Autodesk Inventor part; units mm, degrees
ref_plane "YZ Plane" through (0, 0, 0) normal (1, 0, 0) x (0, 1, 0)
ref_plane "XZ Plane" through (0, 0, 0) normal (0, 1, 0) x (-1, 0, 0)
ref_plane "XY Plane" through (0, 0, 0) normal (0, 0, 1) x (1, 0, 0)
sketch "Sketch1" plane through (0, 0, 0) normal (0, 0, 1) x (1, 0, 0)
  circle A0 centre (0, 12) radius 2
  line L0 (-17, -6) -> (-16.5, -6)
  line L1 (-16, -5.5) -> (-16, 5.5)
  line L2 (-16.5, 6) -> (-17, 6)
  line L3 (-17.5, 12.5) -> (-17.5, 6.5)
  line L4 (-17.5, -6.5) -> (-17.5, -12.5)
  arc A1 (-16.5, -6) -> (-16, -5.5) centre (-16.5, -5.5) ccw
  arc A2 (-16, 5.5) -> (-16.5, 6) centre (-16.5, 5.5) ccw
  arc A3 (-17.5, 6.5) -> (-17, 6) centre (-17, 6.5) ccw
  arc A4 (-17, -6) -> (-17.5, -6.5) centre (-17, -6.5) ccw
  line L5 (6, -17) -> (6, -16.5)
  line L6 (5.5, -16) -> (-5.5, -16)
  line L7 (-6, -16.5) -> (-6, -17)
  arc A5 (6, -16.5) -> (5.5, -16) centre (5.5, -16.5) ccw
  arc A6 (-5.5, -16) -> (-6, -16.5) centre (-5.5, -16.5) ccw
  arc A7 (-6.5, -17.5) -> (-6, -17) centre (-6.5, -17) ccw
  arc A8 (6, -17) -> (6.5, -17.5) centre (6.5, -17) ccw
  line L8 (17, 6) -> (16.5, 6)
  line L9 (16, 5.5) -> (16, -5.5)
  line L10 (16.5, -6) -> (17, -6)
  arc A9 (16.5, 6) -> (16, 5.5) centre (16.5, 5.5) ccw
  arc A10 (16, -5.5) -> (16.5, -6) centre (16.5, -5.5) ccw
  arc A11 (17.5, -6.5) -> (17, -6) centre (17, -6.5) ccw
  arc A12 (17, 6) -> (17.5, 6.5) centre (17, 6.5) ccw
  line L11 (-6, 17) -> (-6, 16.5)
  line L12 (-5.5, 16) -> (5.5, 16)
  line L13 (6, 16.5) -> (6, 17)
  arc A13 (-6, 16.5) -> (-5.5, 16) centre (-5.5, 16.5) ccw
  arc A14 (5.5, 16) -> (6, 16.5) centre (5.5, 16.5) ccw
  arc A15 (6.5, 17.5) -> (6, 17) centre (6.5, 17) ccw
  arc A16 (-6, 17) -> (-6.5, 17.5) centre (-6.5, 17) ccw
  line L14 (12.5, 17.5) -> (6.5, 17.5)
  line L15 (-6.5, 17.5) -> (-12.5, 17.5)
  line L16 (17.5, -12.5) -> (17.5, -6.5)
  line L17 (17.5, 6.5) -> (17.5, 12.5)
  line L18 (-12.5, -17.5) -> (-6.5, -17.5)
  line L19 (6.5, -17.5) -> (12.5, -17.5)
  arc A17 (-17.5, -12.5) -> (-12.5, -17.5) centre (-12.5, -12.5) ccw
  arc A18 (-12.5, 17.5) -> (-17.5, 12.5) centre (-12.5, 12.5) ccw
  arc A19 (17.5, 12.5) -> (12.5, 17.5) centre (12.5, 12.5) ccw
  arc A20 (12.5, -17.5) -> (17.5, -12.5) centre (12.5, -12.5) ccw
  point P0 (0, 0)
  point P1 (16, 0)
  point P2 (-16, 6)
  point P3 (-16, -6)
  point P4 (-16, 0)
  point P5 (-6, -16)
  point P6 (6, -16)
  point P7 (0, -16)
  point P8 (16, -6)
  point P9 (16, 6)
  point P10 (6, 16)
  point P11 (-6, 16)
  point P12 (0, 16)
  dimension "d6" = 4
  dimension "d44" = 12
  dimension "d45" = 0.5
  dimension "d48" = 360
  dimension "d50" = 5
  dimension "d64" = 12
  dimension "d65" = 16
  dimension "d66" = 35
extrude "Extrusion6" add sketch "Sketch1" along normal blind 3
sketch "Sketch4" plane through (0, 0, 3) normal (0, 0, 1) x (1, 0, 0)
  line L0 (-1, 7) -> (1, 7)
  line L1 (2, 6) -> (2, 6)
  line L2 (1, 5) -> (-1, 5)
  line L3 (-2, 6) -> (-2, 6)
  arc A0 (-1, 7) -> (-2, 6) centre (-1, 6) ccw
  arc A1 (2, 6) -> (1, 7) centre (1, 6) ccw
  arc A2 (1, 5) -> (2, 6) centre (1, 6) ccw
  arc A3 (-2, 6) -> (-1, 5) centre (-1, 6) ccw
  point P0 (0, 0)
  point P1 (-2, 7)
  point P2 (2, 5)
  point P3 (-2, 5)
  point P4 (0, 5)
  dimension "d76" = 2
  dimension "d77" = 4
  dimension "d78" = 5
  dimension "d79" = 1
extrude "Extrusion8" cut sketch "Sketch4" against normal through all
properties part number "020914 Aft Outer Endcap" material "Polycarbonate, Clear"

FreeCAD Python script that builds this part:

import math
import FreeCAD as App
import Part
import Sketcher

V = App.Vector

doc = App.newDocument("Part")
body = doc.addObject("PartDesign::Body", "Body")

sketch1 = body.newObject("Sketcher::SketchObject", "Sketch")
sketch1.AttachmentSupport = (doc.getObject("XY_Plane"), [""])
sketch1.MapMode = "FlatFace"
sketch1.addGeometry(Part.LineSegment(V(-16.5, -6, 0), V(-17, -6, 0)), False)
sketch1.addGeometry(Part.ArcOfCircle(Part.Circle(V(-17, -6.5, 0), V(0, 0, 1), 0.5), math.radians(90), math.radians(180)), False)
sketch1.addGeometry(Part.LineSegment(V(-17.5, -6.5, 0), V(-17.5, -12.5, 0)), False)
sketch1.addGeometry(Part.ArcOfCircle(Part.Circle(V(-12.5, -12.5, 0), V(0, 0, 1), 5), math.radians(180), math.radians(270)), False)
sketch1.addGeometry(Part.LineSegment(V(-12.5, -17.5, 0), V(-6.5, -17.5, 0)), False)
sketch1.addGeometry(Part.ArcOfCircle(Part.Circle(V(-6.5, -17, 0), V(0, 0, 1), 0.5), math.radians(-90), math.radians(0)), False)
sketch1.addGeometry(Part.LineSegment(V(-6, -17, 0), V(-6, -16.5, 0)), False)
sketch1.addGeometry(Part.ArcOfCircle(Part.Circle(V(-5.5, -16.5, 0), V(0, 0, 1), 0.5), math.radians(90), math.radians(180)), False)
sketch1.addGeometry(Part.LineSegment(V(-5.5, -16, 0), V(5.5, -16, 0)), False)
sketch1.addGeometry(Part.ArcOfCircle(Part.Circle(V(5.5, -16.5, 0), V(0, 0, 1), 0.5), math.radians(0), math.radians(90)), False)
sketch1.addGeometry(Part.LineSegment(V(6, -16.5, 0), V(6, -17, 0)), False)
sketch1.addGeometry(Part.ArcOfCircle(Part.Circle(V(6.5, -17, 0), V(0, 0, 1), 0.5), math.radians(180), math.radians(270)), False)
sketch1.addGeometry(Part.LineSegment(V(6.5, -17.5, 0), V(12.5, -17.5, 0)), False)
sketch1.addGeometry(Part.ArcOfCircle(Part.Circle(V(12.5, -12.5, 0), V(0, 0, 1), 5), math.radians(-90), math.radians(0)), False)
sketch1.addGeometry(Part.LineSegment(V(17.5, -12.5, 0), V(17.5, -6.5, 0)), False)
sketch1.addGeometry(Part.ArcOfCircle(Part.Circle(V(17, -6.5, 0), V(0, 0, 1), 0.5), math.radians(0), math.radians(90)), False)
sketch1.addGeometry(Part.LineSegment(V(17, -6, 0), V(16.5, -6, 0)), False)
sketch1.addGeometry(Part.ArcOfCircle(Part.Circle(V(16.5, -5.5, 0), V(0, 0, 1), 0.5), math.radians(180), math.radians(270)), False)
sketch1.addGeometry(Part.LineSegment(V(16, -5.5, 0), V(16, 5.5, 0)), False)
sketch1.addGeometry(Part.ArcOfCircle(Part.Circle(V(16.5, 5.5, 0), V(0, 0, 1), 0.5), math.radians(90), math.radians(180)), False)
sketch1.addGeometry(Part.LineSegment(V(16.5, 6, 0), V(17, 6, 0)), False)
sketch1.addGeometry(Part.ArcOfCircle(Part.Circle(V(17, 6.5, 0), V(0, 0, 1), 0.5), math.radians(-90), math.radians(0)), False)
sketch1.addGeometry(Part.LineSegment(V(17.5, 6.5, 0), V(17.5, 12.5, 0)), False)
sketch1.addGeometry(Part.ArcOfCircle(Part.Circle(V(12.5, 12.5, 0), V(0, 0, 1), 5), math.radians(0), math.radians(90)), False)
sketch1.addGeometry(Part.LineSegment(V(12.5, 17.5, 0), V(6.5, 17.5, 0)), False)
sketch1.addGeometry(Part.ArcOfCircle(Part.Circle(V(6.5, 17, 0), V(0, 0, 1), 0.5), math.radians(90), math.radians(180)), False)
sketch1.addGeometry(Part.LineSegment(V(6, 17, 0), V(6, 16.5, 0)), False)
sketch1.addGeometry(Part.ArcOfCircle(Part.Circle(V(5.5, 16.5, 0), V(0, 0, 1), 0.5), math.radians(-90), math.radians(0)), False)
sketch1.addGeometry(Part.LineSegment(V(5.5, 16, 0), V(-5.5, 16, 0)), False)
sketch1.addGeometry(Part.ArcOfCircle(Part.Circle(V(-5.5, 16.5, 0), V(0, 0, 1), 0.5), math.radians(180), math.radians(270)), False)
sketch1.addGeometry(Part.LineSegment(V(-6, 16.5, 0), V(-6, 17, 0)), False)
sketch1.addGeometry(Part.ArcOfCircle(Part.Circle(V(-6.5, 17, 0), V(0, 0, 1), 0.5), math.radians(0), math.radians(90)), False)
sketch1.addGeometry(Part.LineSegment(V(-6.5, 17.5, 0), V(-12.5, 17.5, 0)), False)
sketch1.addGeometry(Part.ArcOfCircle(Part.Circle(V(-12.5, 12.5, 0), V(0, 0, 1), 5), math.radians(90), math.radians(180)), False)
sketch1.addGeometry(Part.LineSegment(V(-17.5, 12.5, 0), V(-17.5, 6.5, 0)), False)
sketch1.addGeometry(Part.ArcOfCircle(Part.Circle(V(-17, 6.5, 0), V(0, 0, 1), 0.5), math.radians(180), math.radians(270)), False)
sketch1.addGeometry(Part.LineSegment(V(-17, 6, 0), V(-16.5, 6, 0)), False)
sketch1.addGeometry(Part.ArcOfCircle(Part.Circle(V(-16.5, 5.5, 0), V(0, 0, 1), 0.5), math.radians(0), math.radians(90)), False)
sketch1.addGeometry(Part.LineSegment(V(-16, 5.5, 0), V(-16, -5.5, 0)), False)
sketch1.addGeometry(Part.ArcOfCircle(Part.Circle(V(-16.5, -5.5, 0), V(0, 0, 1), 0.5), math.radians(-90), math.radians(0)), False)
sketch1.addGeometry(Part.Circle(V(0, 12, 0), V(0, 0, 1), 2), False)
sketch1.addConstraint(Sketcher.Constraint("Tangent", 0, 2, 1, 1))
sketch1.addConstraint(Sketcher.Constraint("Tangent", 1, 2, 2, 1))
sketch1.addConstraint(Sketcher.Constraint("Tangent", 2, 2, 3, 1))
sketch1.addConstraint(Sketcher.Constraint("Tangent", 3, 2, 4, 1))
sketch1.addConstraint(Sketcher.Constraint("Tangent", 4, 2, 5, 1))
sketch1.addConstraint(Sketcher.Constraint("Tangent", 5, 2, 6, 1))
sketch1.addConstraint(Sketcher.Constraint("Tangent", 6, 2, 7, 2))
sketch1.addConstraint(Sketcher.Constraint("Tangent", 7, 1, 8, 1))
sketch1.addConstraint(Sketcher.Constraint("Tangent", 8, 2, 9, 2))
sketch1.addConstraint(Sketcher.Constraint("Tangent", 9, 1, 10, 1))
sketch1.addConstraint(Sketcher.Constraint("Tangent", 10, 2, 11, 1))
sketch1.addConstraint(Sketcher.Constraint("Tangent", 11, 2, 12, 1))
sketch1.addConstraint(Sketcher.Constraint("Tangent", 12, 2, 13, 1))
sketch1.addConstraint(Sketcher.Constraint("Tangent", 13, 2, 14, 1))
sketch1.addConstraint(Sketcher.Constraint("Tangent", 14, 2, 15, 1))
sketch1.addConstraint(Sketcher.Constraint("Tangent", 15, 2, 16, 1))
sketch1.addConstraint(Sketcher.Constraint("Tangent", 16, 2, 17, 2))
sketch1.addConstraint(Sketcher.Constraint("Tangent", 17, 1, 18, 1))
sketch1.addConstraint(Sketcher.Constraint("Tangent", 18, 2, 19, 2))
sketch1.addConstraint(Sketcher.Constraint("Tangent", 19, 1, 20, 1))
sketch1.addConstraint(Sketcher.Constraint("Tangent", 20, 2, 21, 1))
sketch1.addConstraint(Sketcher.Constraint("Tangent", 21, 2, 22, 1))
sketch1.addConstraint(Sketcher.Constraint("Tangent", 22, 2, 23, 1))
sketch1.addConstraint(Sketcher.Constraint("Tangent", 23, 2, 24, 1))
sketch1.addConstraint(Sketcher.Constraint("Tangent", 24, 2, 25, 1))
sketch1.addConstraint(Sketcher.Constraint("Tangent", 25, 2, 26, 1))
sketch1.addConstraint(Sketcher.Constraint("Tangent", 26, 2, 27, 2))
sketch1.addConstraint(Sketcher.Constraint("Tangent", 27, 1, 28, 1))
sketch1.addConstraint(Sketcher.Constraint("Tangent", 28, 2, 29, 2))
sketch1.addConstraint(Sketcher.Constraint("Tangent", 29, 1, 30, 1))
sketch1.addConstraint(Sketcher.Constraint("Tangent", 30, 2, 31, 1))
sketch1.addConstraint(Sketcher.Constraint("Tangent", 31, 2, 32, 1))
sketch1.addConstraint(Sketcher.Constraint("Tangent", 32, 2, 33, 1))
sketch1.addConstraint(Sketcher.Constraint("Tangent", 33, 2, 34, 1))
sketch1.addConstraint(Sketcher.Constraint("Tangent", 34, 2, 35, 1))
sketch1.addConstraint(Sketcher.Constraint("Tangent", 35, 2, 36, 1))
sketch1.addConstraint(Sketcher.Constraint("Tangent", 36, 2, 37, 2))
sketch1.addConstraint(Sketcher.Constraint("Tangent", 37, 1, 38, 1))
sketch1.addConstraint(Sketcher.Constraint("Tangent", 38, 2, 39, 2))
sketch1.addConstraint(Sketcher.Constraint("Tangent", 39, 1, 0, 1))
sketch1.addConstraint(Sketcher.Constraint("Horizontal", 0))
sketch1.addConstraint(Sketcher.Constraint("Vertical", 2))
sketch1.addConstraint(Sketcher.Constraint("Horizontal", 4))
sketch1.addConstraint(Sketcher.Constraint("Vertical", 6))
sketch1.addConstraint(Sketcher.Constraint("Horizontal", 8))
sketch1.addConstraint(Sketcher.Constraint("Vertical", 10))
sketch1.addConstraint(Sketcher.Constraint("Horizontal", 12))
sketch1.addConstraint(Sketcher.Constraint("Vertical", 14))
sketch1.addConstraint(Sketcher.Constraint("Horizontal", 16))
sketch1.addConstraint(Sketcher.Constraint("Vertical", 18))
sketch1.addConstraint(Sketcher.Constraint("Horizontal", 20))
sketch1.addConstraint(Sketcher.Constraint("Vertical", 22))
sketch1.addConstraint(Sketcher.Constraint("Horizontal", 24))
sketch1.addConstraint(Sketcher.Constraint("Vertical", 26))
sketch1.addConstraint(Sketcher.Constraint("Horizontal", 28))
sketch1.addConstraint(Sketcher.Constraint("Vertical", 30))
sketch1.addConstraint(Sketcher.Constraint("Horizontal", 32))
sketch1.addConstraint(Sketcher.Constraint("Vertical", 34))
sketch1.addConstraint(Sketcher.Constraint("Horizontal", 36))
sketch1.addConstraint(Sketcher.Constraint("Vertical", 38))
sketch1.addConstraint(Sketcher.Constraint("Equal", 1, 5))
sketch1.addConstraint(Sketcher.Constraint("Equal", 5, 7))
sketch1.addConstraint(Sketcher.Constraint("Equal", 7, 9))
sketch1.addConstraint(Sketcher.Constraint("Equal", 9, 11))
sketch1.addConstraint(Sketcher.Constraint("Equal", 3, 13))
sketch1.addConstraint(Sketcher.Constraint("Equal", 11, 15))
sketch1.addConstraint(Sketcher.Constraint("Equal", 15, 17))
sketch1.addConstraint(Sketcher.Constraint("Equal", 17, 19))
sketch1.addConstraint(Sketcher.Constraint("Equal", 19, 21))
sketch1.addConstraint(Sketcher.Constraint("Equal", 13, 23))
sketch1.addConstraint(Sketcher.Constraint("Equal", 21, 25))
sketch1.addConstraint(Sketcher.Constraint("Equal", 25, 27))
sketch1.addConstraint(Sketcher.Constraint("Equal", 27, 29))
sketch1.addConstraint(Sketcher.Constraint("Equal", 29, 31))
sketch1.addConstraint(Sketcher.Constraint("Equal", 23, 33))
sketch1.addConstraint(Sketcher.Constraint("Equal", 31, 35))
sketch1.addConstraint(Sketcher.Constraint("Equal", 35, 37))
sketch1.addConstraint(Sketcher.Constraint("Equal", 37, 39))
sketch1.addConstraint(Sketcher.Constraint("Symmetric", 1, 3, 21, 3, -1, 1))
sketch1.addConstraint(Sketcher.Constraint("Symmetric", 5, 3, 25, 3, -1, 1))
sketch1.addConstraint(Sketcher.Constraint("Symmetric", 9, 3, 29, 3, -1, 1))
sketch1.addConstraint(Sketcher.Constraint("Symmetric", 13, 3, 33, 3, -1, 1))
sketch1.addConstraint(Sketcher.Constraint("Symmetric", 17, 3, 37, 3, -1, 1))
sketch1.addConstraint(Sketcher.Constraint("Symmetric", 5, 3, 11, 3, -2))
sketch1.addConstraint(Sketcher.Constraint("Symmetric", 1, 3, 15, 3, -2))
sketch1.addConstraint(Sketcher.Constraint("PointOnObject", 40, 3, -2))
sketch1.addConstraint(Sketcher.Constraint("Equal", 32, 2))
sketch1.addConstraint(Sketcher.Constraint("Equal", 36, 6))
sketch1.addConstraint(Sketcher.Constraint("Equal", 28, 18))
sketch1.addConstraint(Sketcher.Constraint("Diameter", 40, 4.0))
sketch1.addConstraint(Sketcher.Constraint("Radius", 3, 5.0))
sketch1.addConstraint(Sketcher.Constraint("Radius", 1, 0.5))
sketch1.addConstraint(Sketcher.Constraint("DistanceX", 0, 2, 0, 1, 0.5))
sketch1.addConstraint(Sketcher.Constraint("DistanceY", -1, 1, 40, 3, 12.0))
sketch1.addConstraint(Sketcher.Constraint("DistanceY", 7, 1, -1, 1, 16.0))
sketch1.addConstraint(Sketcher.Constraint("DistanceX", 4, 1, 4, 2, 6.0))
pad1 = body.newObject("PartDesign::Pad", "Pad")
pad1.Profile = sketch1
pad1.Length = 3

sketch2 = body.newObject("Sketcher::SketchObject", "Sketch001")
sketch2.AttachmentSupport = (doc.getObject("XY_Plane"), [""])
sketch2.MapMode = "FlatFace"
sketch2.AttachmentOffset = App.Placement(V(0, 0, 3), App.Rotation())
sketch2.addGeometry(Part.LineSegment(V(1, 7, 0), V(-1, 7, 0)), False)
sketch2.addGeometry(Part.ArcOfCircle(Part.Circle(V(-1, 6, 0), V(0, 0, 1), 1), math.radians(90), math.radians(270)), False)
sketch2.addGeometry(Part.LineSegment(V(-1, 5, 0), V(1, 5, 0)), False)
sketch2.addGeometry(Part.ArcOfCircle(Part.Circle(V(1, 6, 0), V(0, 0, 1), 1), math.radians(-90), math.radians(90)), False)
sketch2.addConstraint(Sketcher.Constraint("Tangent", 0, 2, 1, 1))
sketch2.addConstraint(Sketcher.Constraint("Tangent", 1, 2, 2, 1))
sketch2.addConstraint(Sketcher.Constraint("Tangent", 2, 2, 3, 1))
sketch2.addConstraint(Sketcher.Constraint("Tangent", 3, 2, 0, 1))
sketch2.addConstraint(Sketcher.Constraint("Horizontal", 0))
sketch2.addConstraint(Sketcher.Constraint("Horizontal", 2))
sketch2.addConstraint(Sketcher.Constraint("Radius", 1, 1.0))
sketch2.addConstraint(Sketcher.Constraint("DistanceX", 0, 2, 0, 1, 2.0))
sketch2.addConstraint(Sketcher.Constraint("DistanceX", 1, 3, -1, 1, 1.0))
sketch2.addConstraint(Sketcher.Constraint("DistanceY", -1, 1, 1, 2, 5.0))
pocket1 = body.newObject("PartDesign::Pocket", "Pocket")
pocket1.Profile = sketch2
pocket1.Type = "ThroughAll"

doc.recompute()
